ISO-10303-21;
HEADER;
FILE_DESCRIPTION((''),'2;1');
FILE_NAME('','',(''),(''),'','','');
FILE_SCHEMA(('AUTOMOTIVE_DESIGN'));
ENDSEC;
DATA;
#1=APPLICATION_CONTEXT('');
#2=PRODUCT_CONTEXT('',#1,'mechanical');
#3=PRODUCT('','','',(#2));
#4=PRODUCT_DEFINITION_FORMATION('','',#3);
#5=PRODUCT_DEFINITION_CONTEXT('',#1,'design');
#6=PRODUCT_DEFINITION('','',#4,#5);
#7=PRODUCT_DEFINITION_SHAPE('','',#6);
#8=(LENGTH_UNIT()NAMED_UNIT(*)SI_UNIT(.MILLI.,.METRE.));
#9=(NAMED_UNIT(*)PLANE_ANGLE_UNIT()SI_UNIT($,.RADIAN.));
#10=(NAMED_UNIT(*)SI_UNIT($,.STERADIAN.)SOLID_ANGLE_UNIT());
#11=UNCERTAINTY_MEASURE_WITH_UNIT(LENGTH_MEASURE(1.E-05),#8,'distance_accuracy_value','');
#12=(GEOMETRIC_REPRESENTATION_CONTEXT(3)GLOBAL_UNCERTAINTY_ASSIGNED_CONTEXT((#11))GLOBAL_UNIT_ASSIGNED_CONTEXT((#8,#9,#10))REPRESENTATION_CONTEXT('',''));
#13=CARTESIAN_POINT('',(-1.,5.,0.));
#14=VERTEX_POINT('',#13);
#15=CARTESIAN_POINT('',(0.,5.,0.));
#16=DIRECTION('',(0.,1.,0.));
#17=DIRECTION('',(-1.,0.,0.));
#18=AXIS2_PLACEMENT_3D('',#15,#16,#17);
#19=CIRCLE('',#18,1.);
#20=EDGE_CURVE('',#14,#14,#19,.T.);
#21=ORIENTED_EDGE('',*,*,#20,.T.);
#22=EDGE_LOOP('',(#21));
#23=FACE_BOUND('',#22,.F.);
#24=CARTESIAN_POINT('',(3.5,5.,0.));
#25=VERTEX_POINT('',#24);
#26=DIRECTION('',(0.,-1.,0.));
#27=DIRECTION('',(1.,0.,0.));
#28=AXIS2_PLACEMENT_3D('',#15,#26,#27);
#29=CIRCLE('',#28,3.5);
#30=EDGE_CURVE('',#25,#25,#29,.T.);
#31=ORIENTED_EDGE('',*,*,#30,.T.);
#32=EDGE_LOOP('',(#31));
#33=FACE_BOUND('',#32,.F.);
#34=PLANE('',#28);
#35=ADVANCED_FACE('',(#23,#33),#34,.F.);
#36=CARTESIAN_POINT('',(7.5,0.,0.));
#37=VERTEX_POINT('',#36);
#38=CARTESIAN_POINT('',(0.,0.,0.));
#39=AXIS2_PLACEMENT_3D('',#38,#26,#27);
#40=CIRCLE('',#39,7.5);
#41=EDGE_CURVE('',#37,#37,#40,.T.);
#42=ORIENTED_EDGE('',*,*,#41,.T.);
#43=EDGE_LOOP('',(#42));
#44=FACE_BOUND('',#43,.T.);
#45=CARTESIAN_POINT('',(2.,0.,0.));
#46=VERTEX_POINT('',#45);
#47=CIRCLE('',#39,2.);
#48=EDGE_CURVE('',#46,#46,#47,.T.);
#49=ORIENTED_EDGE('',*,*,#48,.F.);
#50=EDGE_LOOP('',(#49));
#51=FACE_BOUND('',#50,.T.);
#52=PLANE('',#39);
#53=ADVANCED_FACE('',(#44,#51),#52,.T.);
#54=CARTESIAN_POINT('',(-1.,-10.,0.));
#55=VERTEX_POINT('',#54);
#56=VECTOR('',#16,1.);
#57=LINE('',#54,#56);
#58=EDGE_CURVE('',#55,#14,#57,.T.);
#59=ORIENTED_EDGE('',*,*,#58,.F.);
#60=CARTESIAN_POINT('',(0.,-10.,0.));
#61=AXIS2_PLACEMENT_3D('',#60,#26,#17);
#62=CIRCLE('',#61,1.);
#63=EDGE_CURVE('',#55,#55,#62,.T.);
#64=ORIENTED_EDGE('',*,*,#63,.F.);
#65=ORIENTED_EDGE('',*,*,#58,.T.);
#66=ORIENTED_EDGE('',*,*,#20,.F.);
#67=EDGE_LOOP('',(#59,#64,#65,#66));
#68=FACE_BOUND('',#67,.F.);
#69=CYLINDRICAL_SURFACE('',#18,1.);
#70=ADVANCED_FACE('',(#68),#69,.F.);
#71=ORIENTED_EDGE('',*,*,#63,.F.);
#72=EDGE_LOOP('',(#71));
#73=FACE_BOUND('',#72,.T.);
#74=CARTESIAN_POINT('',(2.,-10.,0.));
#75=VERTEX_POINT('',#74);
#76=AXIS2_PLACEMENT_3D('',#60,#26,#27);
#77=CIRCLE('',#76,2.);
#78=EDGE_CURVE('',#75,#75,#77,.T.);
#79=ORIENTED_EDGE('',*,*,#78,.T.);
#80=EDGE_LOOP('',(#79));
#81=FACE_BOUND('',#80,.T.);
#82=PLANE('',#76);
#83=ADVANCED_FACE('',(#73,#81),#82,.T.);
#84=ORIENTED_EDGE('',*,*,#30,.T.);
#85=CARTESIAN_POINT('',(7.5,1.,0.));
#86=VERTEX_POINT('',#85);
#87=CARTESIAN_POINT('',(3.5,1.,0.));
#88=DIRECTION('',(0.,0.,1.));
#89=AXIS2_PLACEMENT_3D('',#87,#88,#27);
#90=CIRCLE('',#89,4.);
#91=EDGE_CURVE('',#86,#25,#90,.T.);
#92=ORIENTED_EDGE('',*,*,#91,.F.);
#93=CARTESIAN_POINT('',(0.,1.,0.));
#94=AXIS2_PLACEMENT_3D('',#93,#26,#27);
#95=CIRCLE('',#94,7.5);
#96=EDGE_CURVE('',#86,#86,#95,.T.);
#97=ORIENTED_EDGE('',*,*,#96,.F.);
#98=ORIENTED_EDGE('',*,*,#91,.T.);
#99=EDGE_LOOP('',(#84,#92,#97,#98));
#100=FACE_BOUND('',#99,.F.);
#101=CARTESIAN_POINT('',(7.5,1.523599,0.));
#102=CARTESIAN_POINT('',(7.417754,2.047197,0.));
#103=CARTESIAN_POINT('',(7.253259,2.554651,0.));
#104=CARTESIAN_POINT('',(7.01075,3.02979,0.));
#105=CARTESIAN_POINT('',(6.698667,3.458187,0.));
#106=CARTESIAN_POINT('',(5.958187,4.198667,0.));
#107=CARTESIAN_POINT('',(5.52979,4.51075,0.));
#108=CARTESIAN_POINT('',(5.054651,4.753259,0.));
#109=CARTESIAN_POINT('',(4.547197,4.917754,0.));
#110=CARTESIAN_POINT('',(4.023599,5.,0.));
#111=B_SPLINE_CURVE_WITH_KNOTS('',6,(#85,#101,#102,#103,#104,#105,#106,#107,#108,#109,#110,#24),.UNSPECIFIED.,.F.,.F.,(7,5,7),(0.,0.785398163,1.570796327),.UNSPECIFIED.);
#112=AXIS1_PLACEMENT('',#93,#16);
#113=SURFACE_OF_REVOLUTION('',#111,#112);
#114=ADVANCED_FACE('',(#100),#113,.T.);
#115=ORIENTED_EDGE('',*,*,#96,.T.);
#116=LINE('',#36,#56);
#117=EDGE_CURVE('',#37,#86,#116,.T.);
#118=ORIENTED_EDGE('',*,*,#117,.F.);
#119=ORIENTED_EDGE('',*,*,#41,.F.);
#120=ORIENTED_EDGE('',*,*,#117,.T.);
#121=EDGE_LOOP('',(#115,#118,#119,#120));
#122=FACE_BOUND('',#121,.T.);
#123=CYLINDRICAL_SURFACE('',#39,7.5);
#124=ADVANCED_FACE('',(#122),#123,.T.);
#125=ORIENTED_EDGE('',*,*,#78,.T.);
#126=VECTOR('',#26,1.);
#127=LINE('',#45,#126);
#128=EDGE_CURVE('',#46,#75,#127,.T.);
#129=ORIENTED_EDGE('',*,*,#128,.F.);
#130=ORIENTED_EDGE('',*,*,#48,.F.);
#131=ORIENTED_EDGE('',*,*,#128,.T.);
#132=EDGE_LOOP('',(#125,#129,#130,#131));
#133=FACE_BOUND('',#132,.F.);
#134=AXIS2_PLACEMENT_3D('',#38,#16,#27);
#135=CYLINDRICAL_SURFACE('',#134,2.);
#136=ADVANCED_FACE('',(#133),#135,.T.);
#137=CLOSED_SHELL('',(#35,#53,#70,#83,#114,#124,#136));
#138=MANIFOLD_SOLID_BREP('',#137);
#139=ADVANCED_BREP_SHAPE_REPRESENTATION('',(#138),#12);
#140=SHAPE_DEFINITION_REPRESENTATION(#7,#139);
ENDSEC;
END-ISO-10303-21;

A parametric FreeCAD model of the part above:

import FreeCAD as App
import Part
import Sketcher
Q = App.Units.Quantity


def edges_at(feature, points):
    """Names of the edges that pass closest to the given points."""
    edges = feature.Shape.Edges
    near = lambda p: min(range(len(edges)), key=lambda i: edges[i].distToShape(Part.Vertex(*p))[0])
    return sorted({f"Edge{near(p) + 1}" for p in points})

doc = App.newDocument("Part")
body = doc.addObject("PartDesign::Body", "Body")

# Sketch on XZ plane
sketch1 = doc.addObject("Sketcher::SketchObject", "Sketch")
body.addObject(sketch1)
sketch1.AttachmentSupport = (doc.XZ_Plane, [""])
sketch1.MapMode = "FlatFace"
sketch1.addGeometry([
    Part.Circle(App.Vector(0, 0, 0), App.Vector(0, 0, 1), 2),
    Part.Circle(App.Vector(0, 0, 0), App.Vector(0, 0, 1), 1),
], False)
sketch1.addConstraint([
    Sketcher.Constraint("Coincident", 0, 3, -1, 1),
    Sketcher.Constraint("Coincident", 1, 3, -1, 1),
    Sketcher.Constraint("Diameter", 0, Q("4 mm")),
    Sketcher.Constraint("Diameter", 1, Q("2 mm")),
])
pad1 = doc.addObject("PartDesign::Pad", "Pad")
body.addObject(pad1)
pad1.Profile = sketch1
pad1.Length = 10

# Sketch on XZ plane
sketch2 = doc.addObject("Sketcher::SketchObject", "Sketch001")
body.addObject(sketch2)
sketch2.AttachmentSupport = (doc.XZ_Plane, [""])
sketch2.MapMode = "FlatFace"
sketch2.addGeometry(Part.Circle(App.Vector(0, 0, 0), App.Vector(0, 0, 1), 8), False)
sketch2.addConstraint([
    Sketcher.Constraint("Coincident", 0, 3, -1, 1),
    Sketcher.Constraint("Diameter", 0, Q("15 mm")),
])
pad2 = doc.addObject("PartDesign::Pad", "Pad001")
body.addObject(pad2)
pad2.Profile = sketch2
pad2.Length = 5
pad2.Reversed = True

# Sketch on XZ plane
sketch3 = doc.addObject("Sketcher::SketchObject", "Sketch002")
body.addObject(sketch3)
sketch3.AttachmentSupport = (doc.XZ_Plane, [""])
sketch3.MapMode = "FlatFace"
sketch3.AttachmentOffset = App.Placement(App.Vector(0, 0, -5), App.Rotation())
sketch3.addGeometry(Part.Circle(App.Vector(0, 0, 0), App.Vector(0, 0, 1), 1), False)
sketch3.addConstraint([
    Sketcher.Constraint("Coincident", 0, 3, -1, 1),
    Sketcher.Constraint("Diameter", 0, Q("2 mm")),
])
pocket1 = doc.addObject("PartDesign::Pocket", "Pocket")
body.addObject(pocket1)
pocket1.Profile = sketch3
pocket1.Type = "ThroughAll"
pocket1.Reversed = True
doc.recompute()

fillet = doc.addObject("PartDesign::Fillet", "Fillet")
body.addObject(fillet)
fillet.Base = (pocket1, edges_at(pocket1, [(-7.5, 5, 0)]))
fillet.Radius = 4

doc.recompute()
